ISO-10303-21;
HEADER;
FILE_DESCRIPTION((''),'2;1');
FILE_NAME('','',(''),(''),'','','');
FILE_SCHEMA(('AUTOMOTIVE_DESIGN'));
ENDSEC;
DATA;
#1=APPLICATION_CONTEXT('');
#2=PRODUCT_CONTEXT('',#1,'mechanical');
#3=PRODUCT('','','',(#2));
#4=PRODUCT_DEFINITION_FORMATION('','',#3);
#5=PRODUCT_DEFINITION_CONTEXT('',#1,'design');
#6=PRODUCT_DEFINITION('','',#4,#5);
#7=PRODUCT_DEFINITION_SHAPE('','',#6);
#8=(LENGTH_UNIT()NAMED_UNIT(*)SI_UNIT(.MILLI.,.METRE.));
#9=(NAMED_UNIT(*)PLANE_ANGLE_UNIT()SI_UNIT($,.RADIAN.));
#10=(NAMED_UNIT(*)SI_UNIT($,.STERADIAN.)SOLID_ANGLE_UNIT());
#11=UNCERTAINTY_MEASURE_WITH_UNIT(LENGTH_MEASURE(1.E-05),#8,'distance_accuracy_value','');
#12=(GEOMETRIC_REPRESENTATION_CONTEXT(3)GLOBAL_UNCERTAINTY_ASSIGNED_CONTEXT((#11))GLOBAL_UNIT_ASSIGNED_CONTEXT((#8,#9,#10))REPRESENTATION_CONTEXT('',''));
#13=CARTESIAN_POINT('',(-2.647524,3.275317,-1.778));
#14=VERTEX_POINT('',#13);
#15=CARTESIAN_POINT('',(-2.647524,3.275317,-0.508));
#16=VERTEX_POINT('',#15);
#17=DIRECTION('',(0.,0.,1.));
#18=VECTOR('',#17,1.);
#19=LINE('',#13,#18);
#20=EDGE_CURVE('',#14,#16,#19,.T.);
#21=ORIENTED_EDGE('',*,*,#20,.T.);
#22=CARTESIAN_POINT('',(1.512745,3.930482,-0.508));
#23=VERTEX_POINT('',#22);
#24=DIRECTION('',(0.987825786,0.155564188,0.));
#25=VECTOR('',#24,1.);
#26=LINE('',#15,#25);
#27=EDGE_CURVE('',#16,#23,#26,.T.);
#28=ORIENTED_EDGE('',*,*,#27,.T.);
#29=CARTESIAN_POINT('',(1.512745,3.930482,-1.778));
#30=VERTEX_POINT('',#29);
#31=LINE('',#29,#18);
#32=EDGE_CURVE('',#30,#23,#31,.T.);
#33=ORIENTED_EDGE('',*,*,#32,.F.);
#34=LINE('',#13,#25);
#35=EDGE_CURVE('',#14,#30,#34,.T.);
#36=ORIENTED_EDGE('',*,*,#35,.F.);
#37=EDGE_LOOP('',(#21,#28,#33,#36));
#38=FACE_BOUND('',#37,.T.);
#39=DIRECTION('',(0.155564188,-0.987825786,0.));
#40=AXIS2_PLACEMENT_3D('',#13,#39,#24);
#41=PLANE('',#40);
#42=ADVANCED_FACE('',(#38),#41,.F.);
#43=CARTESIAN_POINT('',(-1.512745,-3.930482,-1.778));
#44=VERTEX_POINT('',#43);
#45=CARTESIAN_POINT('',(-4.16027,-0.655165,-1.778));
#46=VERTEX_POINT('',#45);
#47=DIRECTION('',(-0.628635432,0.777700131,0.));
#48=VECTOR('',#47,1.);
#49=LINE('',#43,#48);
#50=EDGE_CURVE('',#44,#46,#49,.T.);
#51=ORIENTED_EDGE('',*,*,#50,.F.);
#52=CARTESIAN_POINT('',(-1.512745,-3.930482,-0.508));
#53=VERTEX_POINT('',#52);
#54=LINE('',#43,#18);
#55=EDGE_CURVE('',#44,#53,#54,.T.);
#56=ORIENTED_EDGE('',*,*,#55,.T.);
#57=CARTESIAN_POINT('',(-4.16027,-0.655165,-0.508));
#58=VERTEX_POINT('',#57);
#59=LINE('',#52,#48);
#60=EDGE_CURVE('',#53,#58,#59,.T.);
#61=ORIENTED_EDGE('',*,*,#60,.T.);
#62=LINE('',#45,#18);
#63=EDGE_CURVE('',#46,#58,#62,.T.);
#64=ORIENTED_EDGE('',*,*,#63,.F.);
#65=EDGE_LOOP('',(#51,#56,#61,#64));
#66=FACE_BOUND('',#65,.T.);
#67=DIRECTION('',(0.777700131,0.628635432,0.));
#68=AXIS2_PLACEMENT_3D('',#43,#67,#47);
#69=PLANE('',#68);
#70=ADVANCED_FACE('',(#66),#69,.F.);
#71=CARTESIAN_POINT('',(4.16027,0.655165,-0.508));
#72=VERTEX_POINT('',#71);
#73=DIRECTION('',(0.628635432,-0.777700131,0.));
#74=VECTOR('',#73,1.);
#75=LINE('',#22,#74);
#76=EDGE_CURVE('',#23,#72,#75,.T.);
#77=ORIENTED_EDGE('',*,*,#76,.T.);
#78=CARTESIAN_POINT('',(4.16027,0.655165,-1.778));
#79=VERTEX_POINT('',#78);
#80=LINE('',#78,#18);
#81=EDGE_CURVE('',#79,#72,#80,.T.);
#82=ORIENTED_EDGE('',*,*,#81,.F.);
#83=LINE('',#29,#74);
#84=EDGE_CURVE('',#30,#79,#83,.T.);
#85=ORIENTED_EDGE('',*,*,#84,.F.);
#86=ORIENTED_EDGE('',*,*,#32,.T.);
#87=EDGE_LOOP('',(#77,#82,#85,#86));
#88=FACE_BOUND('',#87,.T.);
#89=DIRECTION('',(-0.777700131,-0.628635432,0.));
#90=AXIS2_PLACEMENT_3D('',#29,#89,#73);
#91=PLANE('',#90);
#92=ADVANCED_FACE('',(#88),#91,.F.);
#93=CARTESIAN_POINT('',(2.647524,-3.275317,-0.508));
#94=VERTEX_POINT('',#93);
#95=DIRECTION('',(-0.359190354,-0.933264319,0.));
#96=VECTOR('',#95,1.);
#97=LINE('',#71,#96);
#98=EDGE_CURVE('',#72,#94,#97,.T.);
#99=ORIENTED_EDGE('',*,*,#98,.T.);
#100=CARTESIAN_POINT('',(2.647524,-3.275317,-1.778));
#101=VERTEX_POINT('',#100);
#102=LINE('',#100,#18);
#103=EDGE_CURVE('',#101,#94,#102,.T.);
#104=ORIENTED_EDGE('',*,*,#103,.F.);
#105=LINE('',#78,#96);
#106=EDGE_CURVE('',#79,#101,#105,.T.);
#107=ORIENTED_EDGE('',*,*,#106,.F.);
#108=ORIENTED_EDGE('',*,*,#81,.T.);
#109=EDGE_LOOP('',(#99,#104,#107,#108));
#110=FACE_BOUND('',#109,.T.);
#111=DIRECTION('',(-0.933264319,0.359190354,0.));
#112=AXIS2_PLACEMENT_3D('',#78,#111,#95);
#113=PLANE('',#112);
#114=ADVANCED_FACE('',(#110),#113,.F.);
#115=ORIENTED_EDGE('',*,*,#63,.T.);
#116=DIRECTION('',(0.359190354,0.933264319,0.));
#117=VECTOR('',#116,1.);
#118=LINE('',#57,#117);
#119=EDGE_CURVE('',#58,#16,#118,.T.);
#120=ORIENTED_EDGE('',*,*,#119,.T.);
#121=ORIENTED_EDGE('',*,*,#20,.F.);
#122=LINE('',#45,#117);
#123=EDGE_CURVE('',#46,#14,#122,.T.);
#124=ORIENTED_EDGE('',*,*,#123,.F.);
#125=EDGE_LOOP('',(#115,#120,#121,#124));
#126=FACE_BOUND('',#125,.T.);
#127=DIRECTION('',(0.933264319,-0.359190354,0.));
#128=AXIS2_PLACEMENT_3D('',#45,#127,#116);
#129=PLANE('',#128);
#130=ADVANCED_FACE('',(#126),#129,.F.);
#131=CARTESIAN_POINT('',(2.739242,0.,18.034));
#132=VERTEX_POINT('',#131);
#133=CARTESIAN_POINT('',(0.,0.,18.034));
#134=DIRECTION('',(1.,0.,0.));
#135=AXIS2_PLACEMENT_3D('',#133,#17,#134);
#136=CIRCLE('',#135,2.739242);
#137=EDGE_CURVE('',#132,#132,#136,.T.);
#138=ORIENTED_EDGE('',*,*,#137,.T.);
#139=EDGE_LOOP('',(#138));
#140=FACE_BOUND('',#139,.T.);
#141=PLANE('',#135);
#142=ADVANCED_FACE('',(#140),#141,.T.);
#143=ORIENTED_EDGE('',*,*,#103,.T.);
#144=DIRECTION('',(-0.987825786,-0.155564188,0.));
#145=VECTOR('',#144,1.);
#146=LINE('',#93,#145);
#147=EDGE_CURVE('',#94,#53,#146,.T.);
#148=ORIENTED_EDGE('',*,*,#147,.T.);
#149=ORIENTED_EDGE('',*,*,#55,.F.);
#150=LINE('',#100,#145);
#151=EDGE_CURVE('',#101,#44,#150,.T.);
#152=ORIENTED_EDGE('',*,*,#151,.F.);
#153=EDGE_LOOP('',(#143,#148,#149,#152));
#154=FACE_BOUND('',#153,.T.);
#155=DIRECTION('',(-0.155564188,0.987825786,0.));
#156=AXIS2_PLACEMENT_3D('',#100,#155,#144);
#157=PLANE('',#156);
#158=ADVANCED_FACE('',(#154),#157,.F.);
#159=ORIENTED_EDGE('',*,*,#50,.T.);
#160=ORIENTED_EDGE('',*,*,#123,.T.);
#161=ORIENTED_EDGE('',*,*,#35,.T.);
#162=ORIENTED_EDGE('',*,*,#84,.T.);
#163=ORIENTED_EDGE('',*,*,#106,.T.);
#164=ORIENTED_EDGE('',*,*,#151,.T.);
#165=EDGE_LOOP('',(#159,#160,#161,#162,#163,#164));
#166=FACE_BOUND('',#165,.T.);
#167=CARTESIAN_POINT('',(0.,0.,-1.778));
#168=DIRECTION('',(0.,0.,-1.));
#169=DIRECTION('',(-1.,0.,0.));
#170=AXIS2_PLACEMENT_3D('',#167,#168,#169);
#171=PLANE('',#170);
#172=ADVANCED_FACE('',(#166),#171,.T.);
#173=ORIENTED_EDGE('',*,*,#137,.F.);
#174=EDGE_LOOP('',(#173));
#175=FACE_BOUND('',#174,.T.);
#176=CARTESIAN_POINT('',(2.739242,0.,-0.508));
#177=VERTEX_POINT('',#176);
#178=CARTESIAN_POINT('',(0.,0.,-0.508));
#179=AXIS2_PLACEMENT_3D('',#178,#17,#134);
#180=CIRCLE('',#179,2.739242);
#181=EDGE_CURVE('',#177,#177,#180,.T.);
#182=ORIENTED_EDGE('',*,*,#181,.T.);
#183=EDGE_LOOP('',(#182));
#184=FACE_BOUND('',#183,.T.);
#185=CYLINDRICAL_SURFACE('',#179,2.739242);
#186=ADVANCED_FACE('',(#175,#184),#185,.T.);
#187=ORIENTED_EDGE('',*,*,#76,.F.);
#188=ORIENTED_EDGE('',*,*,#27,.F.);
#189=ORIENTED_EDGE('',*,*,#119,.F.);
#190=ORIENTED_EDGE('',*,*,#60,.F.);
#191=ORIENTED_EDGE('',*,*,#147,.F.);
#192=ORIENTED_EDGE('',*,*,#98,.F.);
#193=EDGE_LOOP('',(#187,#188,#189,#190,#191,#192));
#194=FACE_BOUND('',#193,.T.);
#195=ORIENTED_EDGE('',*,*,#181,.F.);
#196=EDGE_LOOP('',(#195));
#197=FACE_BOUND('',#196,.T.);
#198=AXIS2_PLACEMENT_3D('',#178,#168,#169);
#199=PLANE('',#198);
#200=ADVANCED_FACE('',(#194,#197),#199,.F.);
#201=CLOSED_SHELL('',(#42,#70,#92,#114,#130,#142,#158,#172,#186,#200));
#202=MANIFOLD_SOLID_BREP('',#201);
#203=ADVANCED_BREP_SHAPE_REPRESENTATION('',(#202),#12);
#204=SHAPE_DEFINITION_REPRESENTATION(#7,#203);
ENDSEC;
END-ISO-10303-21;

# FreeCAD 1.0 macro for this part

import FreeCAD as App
import Part
import Sketcher
Q = App.Units.Quantity

doc = App.newDocument("Part")
body = doc.addObject("PartDesign::Body", "Body")

# Sketch on XY plane
sketch1 = body.newObject("Sketcher::SketchObject", "Sketch")
sketch1.AttachmentSupport = (doc.getObject("XY_Plane"), [""])
sketch1.MapMode = "FlatFace"
sketch1.addGeometry(Part.Circle(App.Vector(0, 0, 0), App.Vector(0, 0, 1), 2.739242), False)
sketch1.addConstraint([
    Sketcher.Constraint("Coincident", 0, 3, -1, 1),
    Sketcher.Constraint("Diameter", 0, Q("5.478484 mm")),
])
pad1 = body.newObject("PartDesign::Pad", "Pad")
pad1.Profile = sketch1
pad1.Type = "TwoLengths"
pad1.Length = Q("0.71 in")
pad1.Length2 = Q("0.02 in")

# Sketch on XY plane
sketch2 = body.newObject("Sketcher::SketchObject", "Sketch001")
sketch2.AttachmentSupport = (doc.getObject("XY_Plane"), [""])
sketch2.MapMode = "FlatFace"
sketch2.AttachmentOffset = App.Placement(App.Vector(0, 0, -0.02 * 25.4), App.Rotation())
sketch2.addGeometry([
    Part.LineSegment(App.Vector(-2.647524, 3.275317, 0), App.Vector(1.512745, 3.930482, 0)),  # 0
    Part.LineSegment(App.Vector(1.512745, 3.930482, 0), App.Vector(4.16027, 0.655165, 0)),  # 1
    Part.LineSegment(App.Vector(4.16027, 0.655165, 0), App.Vector(2.647524, -3.275317, 0)),  # 2
    Part.LineSegment(App.Vector(2.647524, -3.275317, 0), App.Vector(-1.512745, -3.930482, 0)),  # 3
    Part.LineSegment(App.Vector(-1.512745, -3.930482, 0), App.Vector(-4.16027, -0.655165, 0)),  # 4
    Part.LineSegment(App.Vector(-4.16027, -0.655165, 0), App.Vector(-2.647524, 3.275317, 0)),  # 5
], False)
sketch2.addConstraint([
    Sketcher.Constraint("Coincident", 0, 2, 1, 1),
    Sketcher.Constraint("Coincident", 1, 2, 2, 1),
    Sketcher.Constraint("Coincident", 2, 2, 3, 1),
    Sketcher.Constraint("Coincident", 3, 2, 4, 1),
    Sketcher.Constraint("Coincident", 4, 2, 5, 1),
    Sketcher.Constraint("Coincident", 5, 2, 0, 1),
    Sketcher.Constraint("Symmetric", 0, 2, 3, 2, -1, 1),
    Sketcher.Constraint("Symmetric", 1, 2, 4, 2, -1, 1),
    Sketcher.Constraint("Symmetric", 2, 2, 5, 2, -1, 1),
    Sketcher.Constraint("Equal", 0, 1),
    Sketcher.Constraint("Equal", 1, 2),
    Sketcher.Constraint("DistanceY", 2, 2, 0, 2, Q("7.205798 mm")),
    Sketcher.Constraint("Distance", 0, Q("4.211542 mm")),
    Sketcher.Constraint("DistanceY", -1, 1, 0, 2, Q("3.930482 mm")),
    Sketcher.Constraint("DistanceX", -1, 1, 1, 2, Q("4.16027 mm")),
])
pad2 = body.newObject("PartDesign::Pad", "Pad001")
pad2.Profile = sketch2
pad2.Length = Q("0.05 in")
pad2.Reversed = True

doc.recompute()
